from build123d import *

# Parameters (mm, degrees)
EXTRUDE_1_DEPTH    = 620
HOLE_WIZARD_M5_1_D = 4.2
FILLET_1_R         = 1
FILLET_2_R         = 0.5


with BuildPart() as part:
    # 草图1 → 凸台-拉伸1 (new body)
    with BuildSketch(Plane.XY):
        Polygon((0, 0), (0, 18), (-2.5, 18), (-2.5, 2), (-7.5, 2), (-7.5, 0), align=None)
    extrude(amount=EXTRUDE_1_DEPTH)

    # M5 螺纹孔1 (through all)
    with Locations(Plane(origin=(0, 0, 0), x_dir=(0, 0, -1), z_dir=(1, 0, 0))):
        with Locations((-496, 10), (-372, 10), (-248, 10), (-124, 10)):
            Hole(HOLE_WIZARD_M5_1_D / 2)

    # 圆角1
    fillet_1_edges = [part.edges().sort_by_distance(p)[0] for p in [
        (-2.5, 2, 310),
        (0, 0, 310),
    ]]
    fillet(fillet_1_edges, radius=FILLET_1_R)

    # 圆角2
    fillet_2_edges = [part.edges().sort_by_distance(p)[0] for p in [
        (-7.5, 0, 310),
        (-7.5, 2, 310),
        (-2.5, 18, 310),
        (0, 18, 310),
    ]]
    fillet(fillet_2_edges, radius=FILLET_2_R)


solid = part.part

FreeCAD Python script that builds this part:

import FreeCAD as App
import Part
import Sketcher
Q = App.Units.Quantity


def edges_at(feature, points):
    """Names of the edges that pass closest to the given points."""
    edges = feature.Shape.Edges
    near = lambda p: min(range(len(edges)), key=lambda i: edges[i].distToShape(Part.Vertex(*p))[0])
    return sorted({f"Edge{near(p) + 1}" for p in points})


def add_polygon(sketch, points):
    """Adds a closed chain of lines whose ends are joined by coincident constraints."""
    first, n = sketch.GeometryCount, len(points)
    for a, b in zip(points, points[1:] + points[:1]):
        sketch.addGeometry(Part.LineSegment(App.Vector(*a, 0), App.Vector(*b, 0)), False)
    for i in range(n):
        sketch.addConstraint(Sketcher.Constraint("Coincident", first + i, 2, first + (i + 1) % n, 1))

doc = App.newDocument("Part")
body = doc.addObject("PartDesign::Body", "Body")

sketch1 = doc.addObject("Sketcher::SketchObject", "Sketch")
body.addObject(sketch1)
sketch1.AttachmentSupport = (doc.XY_Plane, [""])
sketch1.MapMode = "FlatFace"
add_polygon(sketch1, [(0, 0), (0, 18), (-2.5, 18), (-2.5, 2), (-7.5, 2), (-7.5, 0)])
sketch1.addConstraint([
    Sketcher.Constraint("Vertical", 0),
    Sketcher.Constraint("Horizontal", 1),
    Sketcher.Constraint("Vertical", 2),
    Sketcher.Constraint("Horizontal", 3),
    Sketcher.Constraint("Vertical", 4),
    Sketcher.Constraint("Horizontal", 5),
    Sketcher.Constraint("Coincident", 5, 2, -1, 1),
    Sketcher.Constraint("DistanceX", 3, 2, 3, 1, Q("5 mm")),
    Sketcher.Constraint("DistanceY", 0, 1, 0, 2, Q("18 mm")),
    Sketcher.Constraint("DistanceY", 2, 2, 2, 1, Q("16 mm")),
    Sketcher.Constraint("DistanceX", 1, 2, 1, 1, Q("2.5 mm")),
])
pad1 = doc.addObject("PartDesign::Pad", "Pad")
body.addObject(pad1)
pad1.Profile = sketch1
pad1.Length = 620

sketch2 = doc.addObject("Sketcher::SketchObject", "Sketch001")
body.addObject(sketch2)
sketch2.AttachmentSupport = (doc.YZ_Plane, [""])
sketch2.MapMode = "FlatFace"
sketch2.addGeometry([
    Part.Circle(App.Vector(10, 496, 0), App.Vector(0, 0, 1), 2.1),
    Part.Circle(App.Vector(10, 372, 0), App.Vector(0, 0, 1), 2.1),
    Part.Circle(App.Vector(10, 248, 0), App.Vector(0, 0, 1), 2.1),
    Part.Circle(App.Vector(10, 124, 0), App.Vector(0, 0, 1), 2.1),
], False)
sketch2.addConstraint([
    Sketcher.Constraint("Equal", 0, 1),
    Sketcher.Constraint("Equal", 1, 2),
    Sketcher.Constraint("Equal", 2, 3),
    Sketcher.Constraint("Vertical", 0, 3, 1, 3),
    Sketcher.Constraint("Vertical", 1, 3, 2, 3),
    Sketcher.Constraint("Vertical", 2, 3, 3, 3),
    Sketcher.Constraint("Diameter", 0, Q("4.2 mm")),
    Sketcher.Constraint("DistanceX", -1, 1, 0, 3, Q("10 mm")),
    Sketcher.Constraint("DistanceY", -1, 1, 0, 3, Q("496 mm")),
    Sketcher.Constraint("DistanceY", -1, 1, 1, 3, Q("372 mm")),
    Sketcher.Constraint("DistanceY", -1, 1, 2, 3, Q("248 mm")),
    Sketcher.Constraint("DistanceY", -1, 1, 3, 3, Q("124 mm")),
])
doc.recompute()
hole = doc.addObject("PartDesign::Hole", "Hole")
body.addObject(hole)
hole.Profile = sketch2
hole.ThreadType = "None"
hole.Diameter = 4.2
hole.DepthType = "ThroughAll"
doc.recompute()

fillet = doc.addObject("PartDesign::Fillet", "Fillet")
body.addObject(fillet)
fillet.Base = (hole, edges_at(hole, [(-2.5, 2, 310), (0, 0, 310)]))
fillet.Radius = 1
doc.recompute()

fillet2 = doc.addObject("PartDesign::Fillet", "Fillet001")
body.addObject(fillet2)
fillet2.Base = (fillet, edges_at(fillet, [
    (-7.5, 0, 310),
    (-7.5, 2, 310),
    (-2.5, 18, 310),
    (0, 18, 310),
]))
fillet2.Radius = 0.5

doc.recompute()
